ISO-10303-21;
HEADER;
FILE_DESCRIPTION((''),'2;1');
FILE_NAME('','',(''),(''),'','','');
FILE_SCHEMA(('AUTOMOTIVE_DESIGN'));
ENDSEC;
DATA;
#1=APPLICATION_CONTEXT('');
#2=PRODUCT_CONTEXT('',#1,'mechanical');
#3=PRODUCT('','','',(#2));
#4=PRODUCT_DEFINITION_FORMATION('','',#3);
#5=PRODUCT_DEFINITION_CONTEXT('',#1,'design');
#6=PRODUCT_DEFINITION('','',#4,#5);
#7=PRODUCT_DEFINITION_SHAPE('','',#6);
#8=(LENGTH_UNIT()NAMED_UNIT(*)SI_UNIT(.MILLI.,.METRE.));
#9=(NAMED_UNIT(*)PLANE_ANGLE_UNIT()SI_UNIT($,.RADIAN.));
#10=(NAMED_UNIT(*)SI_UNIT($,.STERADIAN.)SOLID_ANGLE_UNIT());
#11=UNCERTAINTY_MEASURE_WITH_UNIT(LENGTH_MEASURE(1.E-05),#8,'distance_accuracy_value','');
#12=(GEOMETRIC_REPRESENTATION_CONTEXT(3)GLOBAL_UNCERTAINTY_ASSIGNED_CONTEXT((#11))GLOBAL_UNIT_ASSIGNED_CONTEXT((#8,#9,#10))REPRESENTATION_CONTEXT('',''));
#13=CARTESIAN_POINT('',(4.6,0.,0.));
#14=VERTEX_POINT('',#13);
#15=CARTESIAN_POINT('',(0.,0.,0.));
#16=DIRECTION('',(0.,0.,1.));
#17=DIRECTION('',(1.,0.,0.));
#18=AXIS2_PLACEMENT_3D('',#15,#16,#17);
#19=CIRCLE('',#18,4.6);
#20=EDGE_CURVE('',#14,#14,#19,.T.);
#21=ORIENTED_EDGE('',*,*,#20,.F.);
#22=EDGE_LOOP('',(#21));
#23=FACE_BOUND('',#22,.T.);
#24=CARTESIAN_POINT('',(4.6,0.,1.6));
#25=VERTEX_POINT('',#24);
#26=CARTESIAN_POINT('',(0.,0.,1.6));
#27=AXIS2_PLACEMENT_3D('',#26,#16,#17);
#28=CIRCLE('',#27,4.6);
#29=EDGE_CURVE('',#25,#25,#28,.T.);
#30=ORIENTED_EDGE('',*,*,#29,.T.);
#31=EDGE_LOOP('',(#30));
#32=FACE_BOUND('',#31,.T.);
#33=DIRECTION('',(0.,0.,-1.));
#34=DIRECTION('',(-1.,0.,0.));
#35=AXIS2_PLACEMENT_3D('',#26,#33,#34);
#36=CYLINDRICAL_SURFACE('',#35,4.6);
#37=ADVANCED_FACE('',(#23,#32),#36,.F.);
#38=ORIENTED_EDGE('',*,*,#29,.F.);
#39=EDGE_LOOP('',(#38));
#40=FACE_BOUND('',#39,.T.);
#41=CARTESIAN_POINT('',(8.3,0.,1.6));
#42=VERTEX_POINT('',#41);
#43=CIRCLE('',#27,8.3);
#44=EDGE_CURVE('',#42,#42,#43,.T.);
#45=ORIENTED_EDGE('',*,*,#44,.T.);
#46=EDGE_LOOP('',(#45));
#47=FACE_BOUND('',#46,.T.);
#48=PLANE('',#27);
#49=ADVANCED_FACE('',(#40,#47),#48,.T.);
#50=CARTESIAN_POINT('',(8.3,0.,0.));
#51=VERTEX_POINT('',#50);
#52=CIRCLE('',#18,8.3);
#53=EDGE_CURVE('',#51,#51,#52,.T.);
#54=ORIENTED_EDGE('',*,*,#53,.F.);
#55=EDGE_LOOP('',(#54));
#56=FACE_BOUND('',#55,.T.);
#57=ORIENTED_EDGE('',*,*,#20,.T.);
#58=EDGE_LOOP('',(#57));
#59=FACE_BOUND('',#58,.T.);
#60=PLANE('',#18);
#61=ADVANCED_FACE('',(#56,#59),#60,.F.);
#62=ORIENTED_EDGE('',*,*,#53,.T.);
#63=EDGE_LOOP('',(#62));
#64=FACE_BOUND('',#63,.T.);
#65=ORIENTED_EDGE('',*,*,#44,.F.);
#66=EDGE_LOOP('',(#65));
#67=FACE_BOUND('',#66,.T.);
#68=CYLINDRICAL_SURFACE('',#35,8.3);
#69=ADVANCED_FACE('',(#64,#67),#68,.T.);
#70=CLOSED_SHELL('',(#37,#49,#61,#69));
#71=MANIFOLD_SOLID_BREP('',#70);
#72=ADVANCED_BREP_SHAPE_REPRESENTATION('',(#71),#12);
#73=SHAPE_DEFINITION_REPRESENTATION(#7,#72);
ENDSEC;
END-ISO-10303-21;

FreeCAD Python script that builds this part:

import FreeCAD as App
import Part
import Sketcher
from FreeCAD import Vector
Q = App.Units.Quantity

doc = App.newDocument("Part")
params = doc.addObject("Spreadsheet::Sheet", "Params")
for row, (alias, value) in enumerate([
    ("sketch1_diameter", "16.6 mm"),
    ("sketch1_diameter2", "9.2 mm"),
    ("pad1_length", "1.6 mm"),
], start=1):
    params.set(f"A{row}", alias)
    params.set(f"B{row}", "=" + value)
    params.setAlias(f"B{row}", alias)

body = doc.addObject("PartDesign::Body", "Body")

# Sketch on XY plane
sketch1 = doc.addObject("Sketcher::SketchObject", "Sketch")
body.addObject(sketch1)
sketch1.AttachmentSupport = (doc.XY_Plane, [""])
sketch1.MapMode = "FlatFace"
sketch1.addGeometry([
    Part.Circle(Vector(0, 0, 0), Vector(0, 0, 1), 8.3),
    Part.Circle(Vector(0, 0, 0), Vector(0, 0, 1), 4.6),
], False)
sketch1.addConstraint([
    Sketcher.Constraint("Coincident", 0, 3, -1, 1),
    Sketcher.Constraint("Coincident", 1, 3, -1, 1),
    Sketcher.Constraint("Diameter", 0, Q("16.6 mm")),
    Sketcher.Constraint("Diameter", 1, Q("9.2 mm")),
])
sketch1.setExpression("Constraints[2]", "Params.sketch1_diameter")
sketch1.setExpression("Constraints[3]", "Params.sketch1_diameter2")
pad1 = doc.addObject("PartDesign::Pad", "Pad")
body.addObject(pad1)
pad1.Profile = sketch1
pad1.setExpression("Length", "Params.pad1_length")

doc.recompute()
